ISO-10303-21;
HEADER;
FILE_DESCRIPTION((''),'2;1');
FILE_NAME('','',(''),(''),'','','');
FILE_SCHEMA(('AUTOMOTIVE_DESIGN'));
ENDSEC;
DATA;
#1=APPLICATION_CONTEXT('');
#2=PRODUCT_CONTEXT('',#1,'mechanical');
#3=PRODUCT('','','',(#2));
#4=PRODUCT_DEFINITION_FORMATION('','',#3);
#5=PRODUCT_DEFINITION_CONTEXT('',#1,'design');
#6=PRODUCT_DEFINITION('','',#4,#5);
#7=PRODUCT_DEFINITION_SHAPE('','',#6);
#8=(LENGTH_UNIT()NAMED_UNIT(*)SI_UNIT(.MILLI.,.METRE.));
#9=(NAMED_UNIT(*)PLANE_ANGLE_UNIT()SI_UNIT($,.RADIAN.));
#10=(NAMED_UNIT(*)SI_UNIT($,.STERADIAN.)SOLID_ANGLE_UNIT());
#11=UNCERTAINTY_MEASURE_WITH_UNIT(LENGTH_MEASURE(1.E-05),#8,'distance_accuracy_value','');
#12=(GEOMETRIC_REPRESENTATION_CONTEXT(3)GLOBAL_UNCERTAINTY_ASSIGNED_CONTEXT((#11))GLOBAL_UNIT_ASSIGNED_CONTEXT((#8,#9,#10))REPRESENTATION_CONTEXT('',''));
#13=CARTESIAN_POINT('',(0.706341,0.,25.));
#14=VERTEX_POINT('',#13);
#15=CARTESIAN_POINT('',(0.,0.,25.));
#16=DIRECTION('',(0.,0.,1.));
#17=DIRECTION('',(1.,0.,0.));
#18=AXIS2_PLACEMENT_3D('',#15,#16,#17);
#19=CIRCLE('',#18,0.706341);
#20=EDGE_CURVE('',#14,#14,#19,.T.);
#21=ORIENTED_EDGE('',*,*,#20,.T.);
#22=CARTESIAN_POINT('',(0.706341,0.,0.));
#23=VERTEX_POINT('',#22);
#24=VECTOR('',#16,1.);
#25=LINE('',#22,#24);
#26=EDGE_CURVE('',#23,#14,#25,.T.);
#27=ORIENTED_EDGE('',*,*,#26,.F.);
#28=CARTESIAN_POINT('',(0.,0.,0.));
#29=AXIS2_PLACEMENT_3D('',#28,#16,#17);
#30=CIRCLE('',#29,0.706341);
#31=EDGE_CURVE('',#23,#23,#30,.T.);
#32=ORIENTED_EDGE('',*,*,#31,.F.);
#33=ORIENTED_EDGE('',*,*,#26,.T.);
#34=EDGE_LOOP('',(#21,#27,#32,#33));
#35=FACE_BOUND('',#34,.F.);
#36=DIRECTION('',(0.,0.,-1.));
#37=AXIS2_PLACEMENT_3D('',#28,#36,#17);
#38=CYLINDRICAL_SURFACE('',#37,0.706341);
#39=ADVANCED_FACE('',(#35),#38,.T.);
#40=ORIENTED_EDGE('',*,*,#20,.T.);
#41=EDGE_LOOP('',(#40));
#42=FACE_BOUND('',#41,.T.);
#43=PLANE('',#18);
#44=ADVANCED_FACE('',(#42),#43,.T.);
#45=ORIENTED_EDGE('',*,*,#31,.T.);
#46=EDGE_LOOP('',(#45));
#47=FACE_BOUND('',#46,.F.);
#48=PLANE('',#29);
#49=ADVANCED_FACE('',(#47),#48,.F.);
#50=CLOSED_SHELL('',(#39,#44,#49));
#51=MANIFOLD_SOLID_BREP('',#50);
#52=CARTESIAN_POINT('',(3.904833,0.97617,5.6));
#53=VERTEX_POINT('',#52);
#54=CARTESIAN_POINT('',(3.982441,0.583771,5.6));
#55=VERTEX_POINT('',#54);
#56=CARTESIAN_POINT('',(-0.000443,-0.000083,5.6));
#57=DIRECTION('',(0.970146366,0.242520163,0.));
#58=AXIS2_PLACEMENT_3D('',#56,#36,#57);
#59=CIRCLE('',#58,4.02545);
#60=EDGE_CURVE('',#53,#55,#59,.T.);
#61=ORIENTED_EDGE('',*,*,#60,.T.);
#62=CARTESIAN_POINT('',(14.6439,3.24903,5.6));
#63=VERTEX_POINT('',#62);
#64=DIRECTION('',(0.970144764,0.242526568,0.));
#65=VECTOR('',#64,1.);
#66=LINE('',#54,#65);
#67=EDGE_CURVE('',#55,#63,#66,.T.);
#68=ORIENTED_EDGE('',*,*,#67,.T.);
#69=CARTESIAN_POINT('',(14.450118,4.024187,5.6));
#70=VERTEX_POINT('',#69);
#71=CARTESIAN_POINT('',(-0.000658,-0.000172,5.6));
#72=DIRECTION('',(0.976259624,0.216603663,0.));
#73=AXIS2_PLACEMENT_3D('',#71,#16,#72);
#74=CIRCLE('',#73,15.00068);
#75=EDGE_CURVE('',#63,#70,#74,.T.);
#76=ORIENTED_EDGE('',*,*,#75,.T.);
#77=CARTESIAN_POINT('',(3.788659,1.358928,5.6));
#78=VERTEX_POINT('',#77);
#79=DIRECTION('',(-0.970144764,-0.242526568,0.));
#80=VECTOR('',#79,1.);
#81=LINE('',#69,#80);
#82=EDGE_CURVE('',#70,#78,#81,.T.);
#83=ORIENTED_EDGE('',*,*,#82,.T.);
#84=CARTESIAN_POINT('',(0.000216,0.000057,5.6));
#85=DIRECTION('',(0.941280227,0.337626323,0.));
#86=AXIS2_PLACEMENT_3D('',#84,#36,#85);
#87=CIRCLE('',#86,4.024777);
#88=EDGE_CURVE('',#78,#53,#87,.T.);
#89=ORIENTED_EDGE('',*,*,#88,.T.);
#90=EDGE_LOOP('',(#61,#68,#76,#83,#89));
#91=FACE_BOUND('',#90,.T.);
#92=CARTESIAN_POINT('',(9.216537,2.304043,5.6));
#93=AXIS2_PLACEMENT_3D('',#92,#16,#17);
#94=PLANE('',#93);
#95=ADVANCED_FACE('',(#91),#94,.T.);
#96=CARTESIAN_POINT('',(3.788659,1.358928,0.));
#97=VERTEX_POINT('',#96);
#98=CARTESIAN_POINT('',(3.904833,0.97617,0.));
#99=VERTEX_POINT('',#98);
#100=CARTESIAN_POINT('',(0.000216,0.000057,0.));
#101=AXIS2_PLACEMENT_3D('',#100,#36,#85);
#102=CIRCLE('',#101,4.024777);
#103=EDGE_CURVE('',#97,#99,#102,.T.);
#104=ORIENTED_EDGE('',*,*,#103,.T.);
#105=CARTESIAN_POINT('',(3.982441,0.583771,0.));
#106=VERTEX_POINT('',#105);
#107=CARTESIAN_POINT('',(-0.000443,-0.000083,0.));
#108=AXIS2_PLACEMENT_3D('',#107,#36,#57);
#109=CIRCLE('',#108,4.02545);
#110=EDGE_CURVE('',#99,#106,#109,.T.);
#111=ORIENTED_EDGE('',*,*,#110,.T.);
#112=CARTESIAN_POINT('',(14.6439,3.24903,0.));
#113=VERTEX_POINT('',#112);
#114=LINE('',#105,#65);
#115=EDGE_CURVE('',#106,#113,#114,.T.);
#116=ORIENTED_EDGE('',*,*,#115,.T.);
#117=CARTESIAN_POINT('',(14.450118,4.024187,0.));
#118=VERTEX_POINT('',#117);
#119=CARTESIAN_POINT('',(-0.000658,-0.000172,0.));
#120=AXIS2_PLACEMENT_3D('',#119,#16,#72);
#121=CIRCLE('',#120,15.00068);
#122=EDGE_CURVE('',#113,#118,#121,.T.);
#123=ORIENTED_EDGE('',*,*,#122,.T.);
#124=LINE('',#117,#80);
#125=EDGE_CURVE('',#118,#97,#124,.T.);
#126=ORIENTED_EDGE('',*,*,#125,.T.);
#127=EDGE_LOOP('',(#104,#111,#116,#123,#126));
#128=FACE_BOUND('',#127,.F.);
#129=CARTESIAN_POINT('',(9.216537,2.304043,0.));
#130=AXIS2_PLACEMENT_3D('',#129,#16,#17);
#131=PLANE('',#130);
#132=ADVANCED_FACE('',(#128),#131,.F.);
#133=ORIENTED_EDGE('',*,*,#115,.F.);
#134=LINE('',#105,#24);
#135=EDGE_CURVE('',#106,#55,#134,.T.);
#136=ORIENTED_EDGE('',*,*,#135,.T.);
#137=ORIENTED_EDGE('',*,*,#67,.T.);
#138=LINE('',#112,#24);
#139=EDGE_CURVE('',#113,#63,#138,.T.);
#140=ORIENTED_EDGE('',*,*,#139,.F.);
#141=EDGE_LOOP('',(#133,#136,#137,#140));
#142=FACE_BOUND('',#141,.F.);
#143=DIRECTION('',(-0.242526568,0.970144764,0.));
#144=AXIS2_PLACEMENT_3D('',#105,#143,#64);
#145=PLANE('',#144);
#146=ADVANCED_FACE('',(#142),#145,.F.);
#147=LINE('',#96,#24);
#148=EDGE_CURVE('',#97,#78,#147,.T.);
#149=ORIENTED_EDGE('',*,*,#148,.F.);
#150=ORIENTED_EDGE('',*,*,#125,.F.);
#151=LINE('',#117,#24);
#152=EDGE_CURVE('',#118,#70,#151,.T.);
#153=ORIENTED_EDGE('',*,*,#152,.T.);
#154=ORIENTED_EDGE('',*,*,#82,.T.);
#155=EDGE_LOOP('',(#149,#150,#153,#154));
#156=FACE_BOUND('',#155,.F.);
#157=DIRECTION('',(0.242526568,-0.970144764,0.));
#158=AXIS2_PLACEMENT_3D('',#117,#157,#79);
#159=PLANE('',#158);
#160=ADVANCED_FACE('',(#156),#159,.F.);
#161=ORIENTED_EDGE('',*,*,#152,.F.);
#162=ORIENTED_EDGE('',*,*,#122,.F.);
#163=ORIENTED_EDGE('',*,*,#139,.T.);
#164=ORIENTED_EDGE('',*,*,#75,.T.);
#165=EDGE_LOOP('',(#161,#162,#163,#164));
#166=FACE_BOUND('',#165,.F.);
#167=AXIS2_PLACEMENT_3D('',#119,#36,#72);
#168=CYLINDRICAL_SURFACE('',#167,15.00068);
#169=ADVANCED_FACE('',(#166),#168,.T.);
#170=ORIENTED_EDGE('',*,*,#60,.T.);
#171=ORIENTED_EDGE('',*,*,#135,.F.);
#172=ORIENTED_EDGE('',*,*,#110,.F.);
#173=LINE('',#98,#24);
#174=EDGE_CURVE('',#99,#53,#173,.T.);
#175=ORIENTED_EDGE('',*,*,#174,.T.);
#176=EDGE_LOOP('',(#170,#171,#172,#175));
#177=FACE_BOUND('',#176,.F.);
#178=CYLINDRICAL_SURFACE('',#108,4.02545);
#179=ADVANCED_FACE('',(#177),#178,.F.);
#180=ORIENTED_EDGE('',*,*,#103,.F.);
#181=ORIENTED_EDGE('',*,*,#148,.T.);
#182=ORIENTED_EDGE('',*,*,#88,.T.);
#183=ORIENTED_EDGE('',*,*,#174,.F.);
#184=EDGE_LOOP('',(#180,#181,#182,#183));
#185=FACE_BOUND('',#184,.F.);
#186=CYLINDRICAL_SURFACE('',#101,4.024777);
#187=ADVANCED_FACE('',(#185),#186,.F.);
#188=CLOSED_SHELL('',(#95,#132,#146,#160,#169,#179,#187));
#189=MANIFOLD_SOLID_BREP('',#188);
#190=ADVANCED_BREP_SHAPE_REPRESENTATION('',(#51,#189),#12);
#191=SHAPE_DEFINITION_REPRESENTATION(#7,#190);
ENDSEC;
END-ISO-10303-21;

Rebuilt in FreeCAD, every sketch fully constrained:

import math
import FreeCAD as App
import Part
import Sketcher

doc = App.newDocument("Part")
body = doc.addObject("PartDesign::Body", "Body")

# Sketch on XY plane
sketch1 = doc.addObject("Sketcher::SketchObject", "Sketch")
body.addObject(sketch1)
sketch1.AttachmentSupport = (doc.XY_Plane, [""])
sketch1.MapMode = "FlatFace"
sketch1.addGeometry(Part.ArcOfCircle(Part.Circle(App.Vector(0, 0, 0), App.Vector(0, 0, 1), 4.03), math.radians(8.34), math.radians(14.04)), False)
sketch1.addGeometry(Part.LineSegment(App.Vector(3.98, 0.58, 0), App.Vector(14.64, 3.25, 0)), False)
sketch1.addGeometry(Part.ArcOfCircle(Part.Circle(App.Vector(0, 0, 0), App.Vector(0, 0, 1), 15), math.radians(12.51), math.radians(15.56)), False)
sketch1.addGeometry(Part.LineSegment(App.Vector(14.45, 4.02, 0), App.Vector(3.79, 1.36, 0)), False)
sketch1.addGeometry(Part.ArcOfCircle(Part.Circle(App.Vector(0, 0, 0), App.Vector(0, 0, 1), 4.02), math.radians(14.04), math.radians(19.73)), False)
sketch1.addConstraint(Sketcher.Constraint("Coincident", 0, 1, 1, 1))
sketch1.addConstraint(Sketcher.Constraint("Coincident", 1, 2, 2, 1))
sketch1.addConstraint(Sketcher.Constraint("Coincident", 2, 2, 3, 1))
sketch1.addConstraint(Sketcher.Constraint("Coincident", 3, 2, 4, 2))
sketch1.addConstraint(Sketcher.Constraint("Coincident", 4, 1, 0, 2))
sketch1.addConstraint(Sketcher.Constraint("Parallel", 1, 3))
sketch1.addConstraint(Sketcher.Constraint("Equal", 1, 3))
sketch1.addConstraint(Sketcher.Constraint("Radius", 0, 4.02545))
sketch1.addConstraint(Sketcher.Constraint("Radius", 2, 15.00068))
sketch1.addConstraint(Sketcher.Constraint("Radius", 4, 4.024777))
sketch1.addConstraint(Sketcher.Constraint("DistanceX", -1, 1, 1, 2, 14.6439))
sketch1.addConstraint(Sketcher.Constraint("DistanceX", 2, 3, 0, 1, 3.983099))
sketch1.addConstraint(Sketcher.Constraint("DistanceX", 0, 3, 3, 2, 3.789102))
sketch1.addConstraint(Sketcher.Constraint("DistanceY", 2, 3, 3, 2, 1.3591))
sketch1.addConstraint(Sketcher.Constraint("DistanceY", 0, 1, 4, 1, 0.392399))
sketch1.addConstraint(Sketcher.Constraint("DistanceX", 2, 3, -1, 1, 0.000658))
sketch1.addConstraint(Sketcher.Constraint("DistanceY", -1, 1, 0, 1, 0.583771))
sketch1.addConstraint(Sketcher.Constraint("DistanceY", -1, 1, 1, 2, 3.24903))
pad1 = doc.addObject("PartDesign::Pad", "Pad")
body.addObject(pad1)
pad1.Profile = sketch1
pad1.Length = 5.6
body2 = doc.addObject("PartDesign::Body", "Body001")

# Sketch on XY plane
sketch2 = doc.addObject("Sketcher::SketchObject", "Sketch001")
body2.addObject(sketch2)
sketch2.AttachmentSupport = (doc.getObject("XY_Plane001"), [""])
sketch2.MapMode = "FlatFace"
sketch2.addGeometry(Part.Circle(App.Vector(0, 0, 0), App.Vector(0, 0, 1), 0.7), False)
sketch2.addConstraint(Sketcher.Constraint("Coincident", 0, 3, -1, 1))
sketch2.addConstraint(Sketcher.Constraint("Diameter", 0, 1.412682))
pad2 = doc.addObject("PartDesign::Pad", "Pad001")
body2.addObject(pad2)
pad2.Profile = sketch2
pad2.Length = 25

doc.recompute()
